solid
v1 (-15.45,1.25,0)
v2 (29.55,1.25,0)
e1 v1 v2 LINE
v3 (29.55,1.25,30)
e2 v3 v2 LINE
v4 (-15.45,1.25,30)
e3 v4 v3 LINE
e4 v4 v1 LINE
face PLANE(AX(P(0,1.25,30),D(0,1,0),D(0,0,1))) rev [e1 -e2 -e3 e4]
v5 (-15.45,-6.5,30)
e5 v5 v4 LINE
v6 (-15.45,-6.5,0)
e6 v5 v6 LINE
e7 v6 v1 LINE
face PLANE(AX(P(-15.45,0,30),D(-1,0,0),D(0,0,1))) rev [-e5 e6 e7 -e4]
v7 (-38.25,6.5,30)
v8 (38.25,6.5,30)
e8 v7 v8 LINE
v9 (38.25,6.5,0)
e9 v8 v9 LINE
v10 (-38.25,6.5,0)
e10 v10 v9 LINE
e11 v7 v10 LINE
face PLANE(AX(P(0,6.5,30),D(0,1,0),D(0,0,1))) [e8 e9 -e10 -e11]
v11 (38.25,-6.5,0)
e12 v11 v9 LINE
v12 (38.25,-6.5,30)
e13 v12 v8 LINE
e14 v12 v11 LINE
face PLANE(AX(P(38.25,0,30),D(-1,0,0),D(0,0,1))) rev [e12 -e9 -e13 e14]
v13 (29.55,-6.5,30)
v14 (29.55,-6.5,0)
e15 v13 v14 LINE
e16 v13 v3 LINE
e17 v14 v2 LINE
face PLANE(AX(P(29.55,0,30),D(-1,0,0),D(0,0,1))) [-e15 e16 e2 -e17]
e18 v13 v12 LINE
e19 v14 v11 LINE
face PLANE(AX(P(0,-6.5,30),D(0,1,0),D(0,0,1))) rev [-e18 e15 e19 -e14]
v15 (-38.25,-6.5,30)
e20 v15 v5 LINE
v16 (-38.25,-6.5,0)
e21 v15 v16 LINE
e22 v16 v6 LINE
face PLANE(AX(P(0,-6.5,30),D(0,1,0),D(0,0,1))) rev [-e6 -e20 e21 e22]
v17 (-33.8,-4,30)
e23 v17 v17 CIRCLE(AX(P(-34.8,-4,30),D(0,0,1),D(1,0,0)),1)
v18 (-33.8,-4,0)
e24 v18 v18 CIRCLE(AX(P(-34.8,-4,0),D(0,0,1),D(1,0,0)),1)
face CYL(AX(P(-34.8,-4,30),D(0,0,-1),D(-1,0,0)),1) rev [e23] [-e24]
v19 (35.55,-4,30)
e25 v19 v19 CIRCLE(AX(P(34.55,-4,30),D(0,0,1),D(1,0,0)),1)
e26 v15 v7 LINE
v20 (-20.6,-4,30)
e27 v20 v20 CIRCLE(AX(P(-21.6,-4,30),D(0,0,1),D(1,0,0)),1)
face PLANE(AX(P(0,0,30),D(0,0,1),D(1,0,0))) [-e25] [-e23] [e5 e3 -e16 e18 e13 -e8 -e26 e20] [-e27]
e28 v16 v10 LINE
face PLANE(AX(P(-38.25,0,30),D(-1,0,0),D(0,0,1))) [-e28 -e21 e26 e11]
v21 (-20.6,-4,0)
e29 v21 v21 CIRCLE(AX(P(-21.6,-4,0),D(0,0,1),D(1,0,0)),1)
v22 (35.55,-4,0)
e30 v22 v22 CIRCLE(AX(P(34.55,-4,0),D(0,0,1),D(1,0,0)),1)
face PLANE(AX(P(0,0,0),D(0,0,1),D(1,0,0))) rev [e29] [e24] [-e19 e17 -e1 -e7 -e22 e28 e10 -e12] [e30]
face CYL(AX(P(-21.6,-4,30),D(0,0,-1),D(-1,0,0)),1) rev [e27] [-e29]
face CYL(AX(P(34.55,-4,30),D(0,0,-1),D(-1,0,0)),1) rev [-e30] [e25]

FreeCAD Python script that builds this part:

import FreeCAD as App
import Part
import Sketcher

doc = App.newDocument("Part")
params = doc.addObject("Spreadsheet::Sheet", "Params")
for row, (alias, value) in enumerate([
    ("sketch1_diameter", "2 mm"),
    ("sketch1_width", "45 mm"),
    ("sketch1_height", "13 mm"),
    ("sketch1_width2", "22.8 mm"),
    ("sketch1_width3", "8.7 mm"),
    ("pad1_length", "30 mm"),
], start=1):
    params.set(f"A{row}", alias)
    params.set(f"B{row}", "=" + value)
    params.setAlias(f"B{row}", alias)

body = doc.addObject("PartDesign::Body", "Body")

sketch1 = body.newObject("Sketcher::SketchObject", "Sketch")
sketch1.AttachmentSupport = (doc.getObject("XY_Plane"), [""])
sketch1.MapMode = "FlatFace"
sketch1.addGeometry([
    Part.LineSegment(App.Vector(-38.2, 6.5, 0), App.Vector(-38.2, -6.5, 0)),
    Part.LineSegment(App.Vector(-38.2, -6.5, 0), App.Vector(-15.4, -6.5, 0)),
    Part.LineSegment(App.Vector(-15.4, -6.5, 0), App.Vector(-15.4, 1.2, 0)),
    Part.LineSegment(App.Vector(-15.4, 1.2, 0), App.Vector(29.6, 1.2, 0)),
    Part.LineSegment(App.Vector(29.6, 1.2, 0), App.Vector(29.6, -6.5, 0)),
    Part.LineSegment(App.Vector(29.6, -6.5, 0), App.Vector(38.2, -6.5, 0)),
    Part.LineSegment(App.Vector(38.2, -6.5, 0), App.Vector(38.2, 6.5, 0)),
    Part.LineSegment(App.Vector(38.2, 6.5, 0), App.Vector(-38.2, 6.5, 0)),
    Part.Circle(App.Vector(-34.8, -4, 0), App.Vector(0, 0, 1), 1),
    Part.Circle(App.Vector(-21.6, -4, 0), App.Vector(0, 0, 1), 1),
    Part.Circle(App.Vector(34.5, -4, 0), App.Vector(0, 0, 1), 1),
], False)
sketch1.addConstraint([
    Sketcher.Constraint("Coincident", 0, 2, 1, 1),
    Sketcher.Constraint("Coincident", 1, 2, 2, 1),
    Sketcher.Constraint("Coincident", 2, 2, 3, 1),
    Sketcher.Constraint("Coincident", 3, 2, 4, 1),
    Sketcher.Constraint("Coincident", 4, 2, 5, 1),
    Sketcher.Constraint("Coincident", 5, 2, 6, 1),
    Sketcher.Constraint("Coincident", 6, 2, 7, 1),
    Sketcher.Constraint("Coincident", 7, 2, 0, 1),
    Sketcher.Constraint("Vertical", 0),
    Sketcher.Constraint("Horizontal", 1),
    Sketcher.Constraint("Vertical", 2),
    Sketcher.Constraint("Horizontal", 3),
    Sketcher.Constraint("Vertical", 4),
    Sketcher.Constraint("Horizontal", 5),
    Sketcher.Constraint("Vertical", 6),
    Sketcher.Constraint("Horizontal", 7),
    Sketcher.Constraint("Equal", 8, 9),
    Sketcher.Constraint("Equal", 9, 10),
    Sketcher.Constraint("Symmetric", 0, 2, 6, 2, -1, 1),
    Sketcher.Constraint("Horizontal", 8, 3, 9, 3),
    Sketcher.Constraint("Horizontal", 9, 3, 10, 3),
    Sketcher.Constraint("Horizontal", 1, 2, 4, 2),
    Sketcher.Constraint("Diameter", 8, 2.0),
    Sketcher.Constraint("DistanceX", 3, 1, 3, 2, 45.0),
    Sketcher.Constraint("DistanceY", 0, 2, 0, 1, 13.0),
    Sketcher.Constraint("DistanceX", 1, 1, 1, 2, 22.8),
    Sketcher.Constraint("DistanceX", 5, 1, 5, 2, 8.7),
    Sketcher.Constraint("DistanceY", 8, 3, -1, 1, 4.0),
    Sketcher.Constraint("DistanceX", 1, 2, 10, 3, 50.0),
    Sketcher.Constraint("DistanceY", 2, 1, 2, 2, 7.75),
    Sketcher.Constraint("DistanceX", 8, 3, -1, 1, 34.8),
    Sketcher.Constraint("DistanceX", 9, 3, -1, 1, 21.6),
])
sketch1.setExpression("Constraints[22]", "Params.sketch1_diameter")
sketch1.setExpression("Constraints[23]", "Params.sketch1_width")
sketch1.setExpression("Constraints[24]", "Params.sketch1_height")
sketch1.setExpression("Constraints[25]", "Params.sketch1_width2")
sketch1.setExpression("Constraints[26]", "Params.sketch1_width3")
pad1 = body.newObject("PartDesign::Pad", "Pad")
pad1.Profile = sketch1
pad1.setExpression("Length", "Params.pad1_length")

doc.recompute()
